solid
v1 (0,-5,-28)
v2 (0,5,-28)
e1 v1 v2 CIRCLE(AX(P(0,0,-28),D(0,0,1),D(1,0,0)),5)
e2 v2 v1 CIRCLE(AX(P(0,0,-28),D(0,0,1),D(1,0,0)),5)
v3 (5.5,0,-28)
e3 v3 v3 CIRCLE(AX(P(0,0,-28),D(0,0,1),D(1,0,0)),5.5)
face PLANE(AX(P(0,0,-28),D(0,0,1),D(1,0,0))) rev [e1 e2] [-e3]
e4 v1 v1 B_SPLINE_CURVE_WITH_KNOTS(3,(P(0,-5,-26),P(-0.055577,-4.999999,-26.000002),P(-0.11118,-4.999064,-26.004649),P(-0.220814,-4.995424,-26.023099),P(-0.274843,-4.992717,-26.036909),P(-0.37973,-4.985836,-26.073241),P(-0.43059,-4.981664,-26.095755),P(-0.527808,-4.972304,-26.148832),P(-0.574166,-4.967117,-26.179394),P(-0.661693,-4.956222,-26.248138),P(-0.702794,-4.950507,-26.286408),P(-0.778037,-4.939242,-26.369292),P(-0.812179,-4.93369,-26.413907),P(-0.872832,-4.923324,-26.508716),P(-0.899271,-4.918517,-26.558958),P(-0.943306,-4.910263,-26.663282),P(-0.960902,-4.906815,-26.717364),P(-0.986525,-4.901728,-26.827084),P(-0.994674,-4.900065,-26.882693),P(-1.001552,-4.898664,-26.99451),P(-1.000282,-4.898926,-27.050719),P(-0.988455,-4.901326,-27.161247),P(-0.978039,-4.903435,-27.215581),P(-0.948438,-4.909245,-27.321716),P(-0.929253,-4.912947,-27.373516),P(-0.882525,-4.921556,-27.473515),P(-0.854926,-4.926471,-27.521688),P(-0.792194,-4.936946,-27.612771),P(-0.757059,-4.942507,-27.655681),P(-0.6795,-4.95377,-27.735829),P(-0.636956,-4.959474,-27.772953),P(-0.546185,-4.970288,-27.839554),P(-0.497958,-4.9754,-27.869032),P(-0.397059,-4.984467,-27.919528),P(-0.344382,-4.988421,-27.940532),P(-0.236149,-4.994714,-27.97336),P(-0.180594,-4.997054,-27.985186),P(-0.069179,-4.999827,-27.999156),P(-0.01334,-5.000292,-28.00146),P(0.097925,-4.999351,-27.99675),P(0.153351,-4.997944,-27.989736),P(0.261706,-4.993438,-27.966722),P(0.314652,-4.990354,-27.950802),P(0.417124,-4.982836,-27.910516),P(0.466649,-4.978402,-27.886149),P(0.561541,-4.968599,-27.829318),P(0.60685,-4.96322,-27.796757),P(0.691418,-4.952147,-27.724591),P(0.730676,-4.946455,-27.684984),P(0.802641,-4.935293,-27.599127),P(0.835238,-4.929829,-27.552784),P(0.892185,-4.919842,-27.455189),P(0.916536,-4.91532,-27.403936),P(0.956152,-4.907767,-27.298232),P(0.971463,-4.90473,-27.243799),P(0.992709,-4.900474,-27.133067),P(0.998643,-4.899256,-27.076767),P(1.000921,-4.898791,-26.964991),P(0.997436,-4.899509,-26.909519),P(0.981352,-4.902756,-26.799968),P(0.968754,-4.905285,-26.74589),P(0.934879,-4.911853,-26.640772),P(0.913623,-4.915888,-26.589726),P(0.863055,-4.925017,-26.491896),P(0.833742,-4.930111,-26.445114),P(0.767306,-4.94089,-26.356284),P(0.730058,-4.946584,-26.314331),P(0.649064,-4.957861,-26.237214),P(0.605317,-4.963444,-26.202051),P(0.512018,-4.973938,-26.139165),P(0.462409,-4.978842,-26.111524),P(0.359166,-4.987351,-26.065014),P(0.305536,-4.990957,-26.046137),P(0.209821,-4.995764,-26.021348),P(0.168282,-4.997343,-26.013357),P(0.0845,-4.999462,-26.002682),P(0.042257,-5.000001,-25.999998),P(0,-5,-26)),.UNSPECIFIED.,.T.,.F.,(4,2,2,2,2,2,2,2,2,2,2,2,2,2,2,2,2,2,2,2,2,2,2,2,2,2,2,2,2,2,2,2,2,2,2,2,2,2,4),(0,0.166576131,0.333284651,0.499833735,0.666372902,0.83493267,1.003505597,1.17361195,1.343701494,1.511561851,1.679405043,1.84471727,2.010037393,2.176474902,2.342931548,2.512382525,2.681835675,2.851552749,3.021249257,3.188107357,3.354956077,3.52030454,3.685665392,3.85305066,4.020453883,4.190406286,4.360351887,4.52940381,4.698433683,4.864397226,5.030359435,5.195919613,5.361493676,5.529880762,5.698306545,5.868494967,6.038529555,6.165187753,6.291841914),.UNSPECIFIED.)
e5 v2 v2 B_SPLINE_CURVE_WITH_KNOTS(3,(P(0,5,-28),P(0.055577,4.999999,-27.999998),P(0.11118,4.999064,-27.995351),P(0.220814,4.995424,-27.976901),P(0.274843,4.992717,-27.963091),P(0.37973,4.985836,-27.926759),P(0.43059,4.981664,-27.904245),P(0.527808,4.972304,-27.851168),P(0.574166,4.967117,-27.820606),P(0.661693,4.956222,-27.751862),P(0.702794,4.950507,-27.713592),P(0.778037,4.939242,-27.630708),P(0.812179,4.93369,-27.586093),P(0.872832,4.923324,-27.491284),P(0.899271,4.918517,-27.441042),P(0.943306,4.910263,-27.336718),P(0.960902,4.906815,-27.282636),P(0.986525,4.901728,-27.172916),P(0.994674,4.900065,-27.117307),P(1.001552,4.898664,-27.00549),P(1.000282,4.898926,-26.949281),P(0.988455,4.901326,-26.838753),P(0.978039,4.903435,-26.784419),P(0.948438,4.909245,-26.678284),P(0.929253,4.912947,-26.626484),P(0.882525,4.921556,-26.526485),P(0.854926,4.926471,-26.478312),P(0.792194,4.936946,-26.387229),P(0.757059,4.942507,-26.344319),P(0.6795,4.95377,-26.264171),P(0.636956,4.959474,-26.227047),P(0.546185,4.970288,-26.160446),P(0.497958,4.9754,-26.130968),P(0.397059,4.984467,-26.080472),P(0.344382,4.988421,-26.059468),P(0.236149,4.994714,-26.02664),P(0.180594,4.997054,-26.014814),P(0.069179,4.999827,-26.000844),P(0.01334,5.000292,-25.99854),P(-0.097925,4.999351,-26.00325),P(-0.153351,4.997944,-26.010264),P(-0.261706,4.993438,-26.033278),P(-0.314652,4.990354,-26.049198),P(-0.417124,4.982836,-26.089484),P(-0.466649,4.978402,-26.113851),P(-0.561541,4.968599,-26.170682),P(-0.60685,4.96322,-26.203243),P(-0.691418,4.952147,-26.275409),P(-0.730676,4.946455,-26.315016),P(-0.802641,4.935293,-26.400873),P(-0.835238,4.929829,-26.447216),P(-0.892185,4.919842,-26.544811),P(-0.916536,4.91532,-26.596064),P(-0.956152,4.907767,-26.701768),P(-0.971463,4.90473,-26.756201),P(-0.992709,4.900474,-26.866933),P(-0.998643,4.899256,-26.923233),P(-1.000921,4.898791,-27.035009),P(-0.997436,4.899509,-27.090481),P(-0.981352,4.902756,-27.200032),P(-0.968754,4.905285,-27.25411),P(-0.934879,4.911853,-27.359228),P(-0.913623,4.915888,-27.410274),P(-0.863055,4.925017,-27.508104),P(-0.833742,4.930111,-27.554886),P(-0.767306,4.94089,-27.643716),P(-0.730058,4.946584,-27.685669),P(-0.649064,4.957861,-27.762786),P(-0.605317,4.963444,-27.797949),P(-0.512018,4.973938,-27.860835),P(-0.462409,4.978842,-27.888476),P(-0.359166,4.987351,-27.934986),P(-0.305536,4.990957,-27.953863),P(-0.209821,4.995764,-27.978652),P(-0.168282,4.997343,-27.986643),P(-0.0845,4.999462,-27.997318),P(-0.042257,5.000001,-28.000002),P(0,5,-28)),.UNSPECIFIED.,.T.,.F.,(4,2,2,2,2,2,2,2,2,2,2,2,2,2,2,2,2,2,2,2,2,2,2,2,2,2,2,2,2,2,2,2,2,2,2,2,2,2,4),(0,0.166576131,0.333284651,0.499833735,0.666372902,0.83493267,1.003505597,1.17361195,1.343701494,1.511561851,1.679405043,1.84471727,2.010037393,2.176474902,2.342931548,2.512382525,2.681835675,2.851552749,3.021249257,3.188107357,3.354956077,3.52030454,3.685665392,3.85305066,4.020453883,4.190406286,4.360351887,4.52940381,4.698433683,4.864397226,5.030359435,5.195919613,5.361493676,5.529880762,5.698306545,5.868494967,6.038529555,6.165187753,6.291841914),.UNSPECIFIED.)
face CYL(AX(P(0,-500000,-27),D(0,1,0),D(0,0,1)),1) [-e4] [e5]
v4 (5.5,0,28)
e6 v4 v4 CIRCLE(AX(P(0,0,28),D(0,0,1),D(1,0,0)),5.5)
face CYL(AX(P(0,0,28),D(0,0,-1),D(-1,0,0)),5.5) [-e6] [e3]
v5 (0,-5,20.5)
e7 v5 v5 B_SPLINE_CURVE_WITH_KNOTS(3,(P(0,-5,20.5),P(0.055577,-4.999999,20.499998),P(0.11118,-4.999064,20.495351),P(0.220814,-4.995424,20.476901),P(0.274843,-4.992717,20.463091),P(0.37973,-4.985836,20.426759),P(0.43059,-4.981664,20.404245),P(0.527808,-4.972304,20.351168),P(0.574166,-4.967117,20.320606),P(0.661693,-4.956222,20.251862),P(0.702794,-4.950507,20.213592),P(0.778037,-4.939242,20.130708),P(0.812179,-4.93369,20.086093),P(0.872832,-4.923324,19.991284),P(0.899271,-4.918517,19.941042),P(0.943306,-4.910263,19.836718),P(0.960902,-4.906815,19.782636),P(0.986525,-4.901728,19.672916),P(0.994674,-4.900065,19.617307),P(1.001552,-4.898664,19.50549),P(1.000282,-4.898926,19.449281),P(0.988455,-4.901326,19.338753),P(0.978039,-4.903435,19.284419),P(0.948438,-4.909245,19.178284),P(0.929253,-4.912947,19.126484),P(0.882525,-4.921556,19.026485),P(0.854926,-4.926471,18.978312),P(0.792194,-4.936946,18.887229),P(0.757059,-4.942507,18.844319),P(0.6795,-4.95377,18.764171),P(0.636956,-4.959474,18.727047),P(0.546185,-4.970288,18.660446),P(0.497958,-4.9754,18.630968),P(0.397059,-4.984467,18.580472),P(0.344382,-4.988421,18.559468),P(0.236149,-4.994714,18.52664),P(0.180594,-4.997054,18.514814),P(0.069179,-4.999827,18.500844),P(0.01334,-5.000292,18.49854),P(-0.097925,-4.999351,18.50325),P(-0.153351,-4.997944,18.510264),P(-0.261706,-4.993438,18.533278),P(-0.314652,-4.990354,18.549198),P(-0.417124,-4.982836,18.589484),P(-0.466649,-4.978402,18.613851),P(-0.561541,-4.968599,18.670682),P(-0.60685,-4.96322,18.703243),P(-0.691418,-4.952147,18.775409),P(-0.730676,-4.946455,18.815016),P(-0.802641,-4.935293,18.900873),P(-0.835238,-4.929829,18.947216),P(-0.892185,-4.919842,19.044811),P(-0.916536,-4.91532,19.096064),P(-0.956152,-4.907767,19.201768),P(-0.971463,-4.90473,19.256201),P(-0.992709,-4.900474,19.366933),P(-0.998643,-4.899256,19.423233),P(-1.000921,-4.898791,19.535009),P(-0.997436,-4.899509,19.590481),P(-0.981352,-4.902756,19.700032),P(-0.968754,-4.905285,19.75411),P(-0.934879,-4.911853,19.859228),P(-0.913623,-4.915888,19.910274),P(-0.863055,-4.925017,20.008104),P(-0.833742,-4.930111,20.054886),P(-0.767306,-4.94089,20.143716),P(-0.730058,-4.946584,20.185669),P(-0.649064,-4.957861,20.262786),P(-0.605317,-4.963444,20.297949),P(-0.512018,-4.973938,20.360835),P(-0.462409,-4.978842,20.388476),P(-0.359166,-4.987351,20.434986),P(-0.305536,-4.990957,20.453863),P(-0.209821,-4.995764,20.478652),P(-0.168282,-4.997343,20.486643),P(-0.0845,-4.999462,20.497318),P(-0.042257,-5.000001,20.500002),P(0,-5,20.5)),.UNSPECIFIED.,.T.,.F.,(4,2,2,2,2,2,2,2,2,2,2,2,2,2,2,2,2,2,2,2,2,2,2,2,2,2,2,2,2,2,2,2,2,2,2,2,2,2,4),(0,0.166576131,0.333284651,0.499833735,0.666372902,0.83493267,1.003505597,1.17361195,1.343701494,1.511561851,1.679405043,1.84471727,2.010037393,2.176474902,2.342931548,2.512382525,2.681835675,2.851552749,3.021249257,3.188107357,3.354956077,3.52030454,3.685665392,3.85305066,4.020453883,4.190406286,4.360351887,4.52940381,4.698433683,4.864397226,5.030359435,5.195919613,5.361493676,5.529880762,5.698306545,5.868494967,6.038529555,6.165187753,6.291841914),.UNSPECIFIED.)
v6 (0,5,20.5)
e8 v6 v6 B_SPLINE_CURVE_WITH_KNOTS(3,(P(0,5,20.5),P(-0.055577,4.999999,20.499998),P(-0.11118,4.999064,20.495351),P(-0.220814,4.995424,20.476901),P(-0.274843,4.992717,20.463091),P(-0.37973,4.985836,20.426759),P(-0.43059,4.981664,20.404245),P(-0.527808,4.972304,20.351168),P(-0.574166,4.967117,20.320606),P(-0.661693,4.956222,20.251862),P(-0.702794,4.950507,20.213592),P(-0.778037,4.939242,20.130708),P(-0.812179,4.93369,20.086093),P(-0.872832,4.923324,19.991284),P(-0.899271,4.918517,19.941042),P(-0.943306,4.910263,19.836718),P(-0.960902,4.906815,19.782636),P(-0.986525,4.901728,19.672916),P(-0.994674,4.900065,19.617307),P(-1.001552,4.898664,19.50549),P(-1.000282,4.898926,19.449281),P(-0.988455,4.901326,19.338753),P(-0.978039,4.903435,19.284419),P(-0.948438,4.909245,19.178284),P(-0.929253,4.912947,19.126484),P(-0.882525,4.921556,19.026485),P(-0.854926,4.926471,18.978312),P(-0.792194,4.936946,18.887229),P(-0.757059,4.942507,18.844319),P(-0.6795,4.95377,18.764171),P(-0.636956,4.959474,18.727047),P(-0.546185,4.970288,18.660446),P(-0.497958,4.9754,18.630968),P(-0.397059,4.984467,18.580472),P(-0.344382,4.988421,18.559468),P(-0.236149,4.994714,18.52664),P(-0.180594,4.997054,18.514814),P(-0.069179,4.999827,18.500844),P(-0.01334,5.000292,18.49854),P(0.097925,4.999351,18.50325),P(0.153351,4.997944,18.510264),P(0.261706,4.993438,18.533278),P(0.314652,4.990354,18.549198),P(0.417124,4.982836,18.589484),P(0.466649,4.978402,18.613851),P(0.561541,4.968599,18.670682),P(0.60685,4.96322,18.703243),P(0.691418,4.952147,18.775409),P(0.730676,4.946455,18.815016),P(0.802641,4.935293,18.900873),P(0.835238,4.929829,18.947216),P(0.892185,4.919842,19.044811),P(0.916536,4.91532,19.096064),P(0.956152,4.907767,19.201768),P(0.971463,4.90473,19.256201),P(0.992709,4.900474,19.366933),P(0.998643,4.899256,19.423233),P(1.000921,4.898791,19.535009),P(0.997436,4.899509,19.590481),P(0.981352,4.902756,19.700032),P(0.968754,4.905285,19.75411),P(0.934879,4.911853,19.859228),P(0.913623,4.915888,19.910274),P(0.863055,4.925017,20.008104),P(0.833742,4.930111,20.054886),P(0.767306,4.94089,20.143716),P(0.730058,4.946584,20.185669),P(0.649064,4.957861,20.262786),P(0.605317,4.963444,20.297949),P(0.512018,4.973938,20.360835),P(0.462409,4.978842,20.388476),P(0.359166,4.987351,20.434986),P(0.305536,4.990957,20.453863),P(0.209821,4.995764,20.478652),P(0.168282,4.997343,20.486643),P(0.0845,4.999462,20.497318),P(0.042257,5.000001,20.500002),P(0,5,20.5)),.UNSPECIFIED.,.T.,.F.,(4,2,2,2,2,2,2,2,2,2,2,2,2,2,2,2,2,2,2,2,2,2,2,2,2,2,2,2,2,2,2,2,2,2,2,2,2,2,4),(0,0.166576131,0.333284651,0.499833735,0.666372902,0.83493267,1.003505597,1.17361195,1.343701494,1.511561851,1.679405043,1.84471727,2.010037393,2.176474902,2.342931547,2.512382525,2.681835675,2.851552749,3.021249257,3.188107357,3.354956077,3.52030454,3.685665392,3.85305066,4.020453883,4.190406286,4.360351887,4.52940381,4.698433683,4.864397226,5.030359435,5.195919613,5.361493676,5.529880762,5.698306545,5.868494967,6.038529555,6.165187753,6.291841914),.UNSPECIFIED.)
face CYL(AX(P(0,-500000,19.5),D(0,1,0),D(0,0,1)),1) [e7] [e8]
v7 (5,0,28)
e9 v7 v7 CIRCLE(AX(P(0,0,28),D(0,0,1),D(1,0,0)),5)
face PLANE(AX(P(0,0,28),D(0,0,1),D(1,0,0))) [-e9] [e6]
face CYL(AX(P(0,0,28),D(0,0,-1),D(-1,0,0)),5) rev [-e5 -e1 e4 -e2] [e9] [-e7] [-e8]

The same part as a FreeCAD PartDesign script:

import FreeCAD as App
import Part
import Sketcher

doc = App.newDocument("Part")
params = doc.addObject("Spreadsheet::Sheet", "Params")
for row, (alias, value) in enumerate([
    ("sketch1_diameter", "11 mm"),
    ("sketch1_diameter2", "10 mm"),
    ("pad1_length", "56 mm"),
    ("sketch2_diameter", "2 mm"),
    ("sketch3_diameter", "2 mm"),
    ("sketch4_diameter", "2 mm"),
    ("sketch5_diameter", "2 mm"),
], start=1):
    params.set(f"A{row}", alias)
    params.set(f"B{row}", "=" + value)
    params.setAlias(f"B{row}", alias)

body = doc.addObject("PartDesign::Body", "Body")

sketch1 = doc.addObject("Sketcher::SketchObject", "Sketch")
body.addObject(sketch1)
sketch1.AttachmentSupport = (doc.XY_Plane, [""])
sketch1.MapMode = "FlatFace"
sketch1.addGeometry(Part.Circle(App.Vector(0, 0, 0), App.Vector(0, 0, 1), 6), False)
sketch1.addGeometry(Part.Circle(App.Vector(0, 0, 0), App.Vector(0, 0, 1), 5), False)
sketch1.addConstraint(Sketcher.Constraint("Coincident", 0, 3, -1, 1))
sketch1.addConstraint(Sketcher.Constraint("Coincident", 1, 3, -1, 1))
sketch1.addConstraint(Sketcher.Constraint("Diameter", 0, 11.0))
sketch1.addConstraint(Sketcher.Constraint("Diameter", 1, 10.0))
sketch1.setExpression("Constraints[2]", "Params.sketch1_diameter")
sketch1.setExpression("Constraints[3]", "Params.sketch1_diameter2")
pad1 = doc.addObject("PartDesign::Pad", "Pad")
body.addObject(pad1)
pad1.Profile = sketch1
pad1.setExpression("Length", "Params.pad1_length")
pad1.Midplane = True

sketch2 = doc.addObject("Sketcher::SketchObject", "Sketch001")
body.addObject(sketch2)
sketch2.AttachmentSupport = (doc.XZ_Plane, [""])
sketch2.MapMode = "FlatFace"
sketch2.addGeometry(Part.Circle(App.Vector(0, 19.5, 0), App.Vector(0, 0, 1), 1), False)
sketch2.addConstraint(Sketcher.Constraint("PointOnObject", 0, 3, -2))
sketch2.addConstraint(Sketcher.Constraint("Diameter", 0, 2.0))
sketch2.addConstraint(Sketcher.Constraint("DistanceY", -1, 1, 0, 3, 19.5))
sketch2.setExpression("Constraints[1]", "Params.sketch2_diameter")
pad2 = doc.addObject("PartDesign::Pad", "Pad001")
body.addObject(pad2)
pad2.Profile = sketch2
pad2.Type = "UpToFirst"
pad2.Reversed = True

sketch3 = doc.addObject("Sketcher::SketchObject", "Sketch002")
body.addObject(sketch3)
sketch3.AttachmentSupport = (doc.XZ_Plane, [""])
sketch3.MapMode = "FlatFace"
sketch3.addGeometry(Part.Circle(App.Vector(0, -27, 0), App.Vector(0, 0, 1), 1), False)
sketch3.addConstraint(Sketcher.Constraint("PointOnObject", 0, 3, -2))
sketch3.addConstraint(Sketcher.Constraint("Diameter", 0, 2.0))
sketch3.addConstraint(Sketcher.Constraint("DistanceY", 0, 3, -1, 1, 27.0))
sketch3.setExpression("Constraints[1]", "Params.sketch3_diameter")
pad3 = doc.addObject("PartDesign::Pad", "Pad002")
body.addObject(pad3)
pad3.Profile = sketch3
pad3.Type = "UpToFirst"
pad3.Reversed = True

sketch4 = doc.addObject("Sketcher::SketchObject", "Sketch003")
body.addObject(sketch4)
sketch4.AttachmentSupport = (doc.XZ_Plane, [""])
sketch4.MapMode = "FlatFace"
sketch4.addGeometry(Part.Circle(App.Vector(0, 19.5, 0), App.Vector(0, 0, 1), 1), False)
sketch4.addConstraint(Sketcher.Constraint("PointOnObject", 0, 3, -2))
sketch4.addConstraint(Sketcher.Constraint("Diameter", 0, 2.0))
sketch4.addConstraint(Sketcher.Constraint("DistanceY", -1, 1, 0, 3, 19.5))
sketch4.setExpression("Constraints[1]", "Params.sketch4_diameter")
pad4 = doc.addObject("PartDesign::Pad", "Pad003")
body.addObject(pad4)
pad4.Profile = sketch4
pad4.Type = "UpToFirst"

sketch5 = doc.addObject("Sketcher::SketchObject", "Sketch004")
body.addObject(sketch5)
sketch5.AttachmentSupport = (doc.XZ_Plane, [""])
sketch5.MapMode = "FlatFace"
sketch5.addGeometry(Part.Circle(App.Vector(0, -27, 0), App.Vector(0, 0, 1), 1), False)
sketch5.addConstraint(Sketcher.Constraint("PointOnObject", 0, 3, -2))
sketch5.addConstraint(Sketcher.Constraint("Diameter", 0, 2.0))
sketch5.addConstraint(Sketcher.Constraint("DistanceY", 0, 3, -1, 1, 27.0))
sketch5.setExpression("Constraints[1]", "Params.sketch5_diameter")
pad5 = doc.addObject("PartDesign::Pad", "Pad004")
body.addObject(pad5)
pad5.Profile = sketch5
pad5.Type = "UpToFirst"

doc.recompute()
